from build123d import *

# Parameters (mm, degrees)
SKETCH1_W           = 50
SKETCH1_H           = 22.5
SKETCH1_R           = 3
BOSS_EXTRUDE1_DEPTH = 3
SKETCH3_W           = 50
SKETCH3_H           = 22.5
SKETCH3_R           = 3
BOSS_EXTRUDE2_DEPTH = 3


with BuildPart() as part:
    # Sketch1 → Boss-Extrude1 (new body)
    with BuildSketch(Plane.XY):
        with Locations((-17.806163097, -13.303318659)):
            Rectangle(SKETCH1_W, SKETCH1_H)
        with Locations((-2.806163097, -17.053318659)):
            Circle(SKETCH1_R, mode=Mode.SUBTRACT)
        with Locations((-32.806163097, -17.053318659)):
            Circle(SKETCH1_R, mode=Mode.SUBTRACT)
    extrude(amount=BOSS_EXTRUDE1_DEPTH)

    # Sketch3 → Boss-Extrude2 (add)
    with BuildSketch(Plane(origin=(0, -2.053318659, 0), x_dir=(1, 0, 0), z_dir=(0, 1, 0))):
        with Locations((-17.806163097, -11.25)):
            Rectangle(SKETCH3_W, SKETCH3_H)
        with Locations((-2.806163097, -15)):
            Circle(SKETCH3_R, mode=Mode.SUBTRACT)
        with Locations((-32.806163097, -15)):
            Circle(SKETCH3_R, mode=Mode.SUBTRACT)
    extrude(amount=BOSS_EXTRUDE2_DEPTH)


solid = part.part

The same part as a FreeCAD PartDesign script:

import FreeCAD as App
import Part
import Sketcher
from FreeCAD import Vector


def add_polygon(sketch, points):
    """Adds a closed chain of lines whose ends are joined by coincident constraints."""
    first, n = sketch.GeometryCount, len(points)
    for a, b in zip(points, points[1:] + points[:1]):
        sketch.addGeometry(Part.LineSegment(App.Vector(*a, 0), App.Vector(*b, 0)), False)
    for i in range(n):
        sketch.addConstraint(Sketcher.Constraint("Coincident", first + i, 2, first + (i + 1) % n, 1))

doc = App.newDocument("Part")
body = doc.addObject("PartDesign::Body", "Body")

# Sketch on XY plane
sketch1 = body.newObject("Sketcher::SketchObject", "Sketch")
sketch1.AttachmentSupport = (doc.getObject("XY_Plane"), [""])
sketch1.MapMode = "FlatFace"
add_polygon(sketch1, [(-42.806163, -2.053319), (-42.806163, -24.553319), (7.193837, -24.553319), (7.193837, -2.053319)])  # lines 0-3
sketch1.addGeometry(Part.Circle(Vector(-32.806163, -17.053319, 0), Vector(0, 0, 1), 3), False)  # 4
sketch1.addGeometry(Part.Circle(Vector(-2.806163, -17.053319, 0), Vector(0, 0, 1), 3), False)  # 5
sketch1.addConstraint([
    Sketcher.Constraint("Vertical", 0),
    Sketcher.Constraint("Horizontal", 1),
    Sketcher.Constraint("Vertical", 2),
    Sketcher.Constraint("Horizontal", 3),
    Sketcher.Constraint("Equal", 4, 5),
    Sketcher.Constraint("Horizontal", 4, 3, 5, 3),
    Sketcher.Constraint("Diameter", 4, 6.0),
    Sketcher.Constraint("DistanceX", 1, 1, 1, 2, 50.0),
    Sketcher.Constraint("DistanceY", 0, 2, 0, 1, 22.5),
    Sketcher.Constraint("DistanceX", 4, 3, 5, 3, 30.0),
    Sketcher.Constraint("DistanceX", 0, 2, 4, 3, 10.0),
    Sketcher.Constraint("DistanceY", 5, 3, 2, 2, 15.0),
    Sketcher.Constraint("DistanceY", 4, 3, -1, 1, 17.053319),
    Sketcher.Constraint("DistanceX", 4, 3, -1, 1, 32.806163),
])
pad1 = body.newObject("PartDesign::Pad", "Pad")
pad1.Profile = sketch1
pad1.Length = 3

# Sketch on XZ plane
sketch2 = body.newObject("Sketcher::SketchObject", "Sketch001")
sketch2.AttachmentSupport = (doc.getObject("XZ_Plane"), [""])
sketch2.MapMode = "FlatFace"
sketch2.AttachmentOffset = App.Placement(Vector(0, 0, 2.053319), App.Rotation())
add_polygon(sketch2, [(-42.806163, 0), (-42.806163, 22.5), (7.193837, 22.5), (7.193837, 0)])  # lines 0-3
sketch2.addGeometry(Part.Circle(Vector(-32.806163, 15, 0), Vector(0, 0, 1), 3), False)  # 4
sketch2.addGeometry(Part.Circle(Vector(-2.806163, 15, 0), Vector(0, 0, 1), 3), False)  # 5
sketch2.addConstraint([
    Sketcher.Constraint("Vertical", 0),
    Sketcher.Constraint("Horizontal", 1),
    Sketcher.Constraint("Vertical", 2),
    Sketcher.Constraint("Horizontal", 3),
    Sketcher.Constraint("Equal", 4, 5),
    Sketcher.Constraint("PointOnObject", 2, 2, -1),
    Sketcher.Constraint("Horizontal", 4, 3, 5, 3),
    Sketcher.Constraint("Diameter", 4, 6.0),
    Sketcher.Constraint("DistanceX", 1, 1, 1, 2, 50.0),
    Sketcher.Constraint("DistanceY", 0, 1, 0, 2, 22.5),
    Sketcher.Constraint("DistanceY", -1, 1, 4, 3, 15.0),
    Sketcher.Constraint("DistanceX", 4, 3, 5, 3, 30.0),
    Sketcher.Constraint("DistanceX", 0, 2, 4, 3, 10.0),
    Sketcher.Constraint("DistanceX", 4, 3, -1, 1, 32.806163),
])
pad2 = body.newObject("PartDesign::Pad", "Pad001")
pad2.Profile = sketch2
pad2.Length = 3
pad2.Reversed = True

doc.recompute()
